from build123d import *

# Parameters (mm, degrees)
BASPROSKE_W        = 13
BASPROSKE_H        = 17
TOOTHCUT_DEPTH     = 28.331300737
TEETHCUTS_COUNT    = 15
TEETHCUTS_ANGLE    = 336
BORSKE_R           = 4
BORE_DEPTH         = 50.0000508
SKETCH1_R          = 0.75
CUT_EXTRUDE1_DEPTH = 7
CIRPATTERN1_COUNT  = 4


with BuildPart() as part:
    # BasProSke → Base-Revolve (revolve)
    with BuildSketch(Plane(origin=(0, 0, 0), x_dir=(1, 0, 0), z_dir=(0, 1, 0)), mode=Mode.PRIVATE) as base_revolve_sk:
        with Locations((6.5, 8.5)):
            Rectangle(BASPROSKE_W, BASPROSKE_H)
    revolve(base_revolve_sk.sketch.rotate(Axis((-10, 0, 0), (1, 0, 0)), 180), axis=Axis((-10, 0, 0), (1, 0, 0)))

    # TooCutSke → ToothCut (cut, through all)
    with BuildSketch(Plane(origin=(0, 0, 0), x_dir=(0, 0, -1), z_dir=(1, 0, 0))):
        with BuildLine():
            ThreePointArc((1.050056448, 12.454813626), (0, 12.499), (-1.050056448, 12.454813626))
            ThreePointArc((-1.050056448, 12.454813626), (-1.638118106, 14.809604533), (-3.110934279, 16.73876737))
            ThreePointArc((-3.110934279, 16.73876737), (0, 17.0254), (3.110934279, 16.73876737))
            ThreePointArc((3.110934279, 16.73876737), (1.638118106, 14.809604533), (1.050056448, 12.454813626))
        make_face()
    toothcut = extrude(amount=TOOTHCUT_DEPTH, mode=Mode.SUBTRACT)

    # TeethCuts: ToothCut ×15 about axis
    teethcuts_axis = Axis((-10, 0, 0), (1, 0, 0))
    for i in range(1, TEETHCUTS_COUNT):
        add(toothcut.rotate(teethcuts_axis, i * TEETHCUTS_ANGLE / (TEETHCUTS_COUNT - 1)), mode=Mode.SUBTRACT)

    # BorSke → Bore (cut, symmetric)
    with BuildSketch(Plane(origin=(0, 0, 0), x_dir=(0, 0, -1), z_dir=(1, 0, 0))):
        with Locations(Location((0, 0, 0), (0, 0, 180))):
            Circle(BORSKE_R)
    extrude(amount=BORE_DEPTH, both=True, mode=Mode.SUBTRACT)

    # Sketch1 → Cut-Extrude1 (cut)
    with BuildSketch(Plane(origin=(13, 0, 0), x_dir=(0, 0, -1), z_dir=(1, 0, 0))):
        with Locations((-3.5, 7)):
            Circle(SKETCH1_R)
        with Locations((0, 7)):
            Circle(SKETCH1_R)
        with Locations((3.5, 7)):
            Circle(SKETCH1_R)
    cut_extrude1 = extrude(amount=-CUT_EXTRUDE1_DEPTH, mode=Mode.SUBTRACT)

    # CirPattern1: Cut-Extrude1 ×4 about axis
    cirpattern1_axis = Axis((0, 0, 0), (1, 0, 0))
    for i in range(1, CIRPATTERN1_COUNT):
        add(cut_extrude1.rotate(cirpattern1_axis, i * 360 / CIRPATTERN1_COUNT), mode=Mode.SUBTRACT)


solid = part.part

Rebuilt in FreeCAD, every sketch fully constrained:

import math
import FreeCAD as App
import Part
import Sketcher
from FreeCAD import Vector

doc = App.newDocument("Part")
body = doc.addObject("PartDesign::Body", "Body")

# Sketch on XZ plane
sketch1 = body.newObject("Sketcher::SketchObject", "Sketch")
sketch1.AttachmentSupport = (doc.getObject("XZ_Plane"), [""])
sketch1.MapMode = "FlatFace"
sketch1.addGeometry([
    Part.LineSegment(Vector(0, -17, 0), Vector(0, 0, 0)),
    Part.LineSegment(Vector(0, 0, 0), Vector(13, 0, 0)),
    Part.LineSegment(Vector(13, 0, 0), Vector(13, -17, 0)),
    Part.LineSegment(Vector(13, -17, 0), Vector(0, -17, 0)),
], False)
sketch1.addConstraint([
    Sketcher.Constraint("Coincident", 0, 2, 1, 1),
    Sketcher.Constraint("Coincident", 1, 2, 2, 1),
    Sketcher.Constraint("Coincident", 2, 2, 3, 1),
    Sketcher.Constraint("Coincident", 3, 2, 0, 1),
    Sketcher.Constraint("Vertical", 0),
    Sketcher.Constraint("Horizontal", 1),
    Sketcher.Constraint("Vertical", 2),
    Sketcher.Constraint("Horizontal", 3),
    Sketcher.Constraint("Coincident", 0, 2, -1, 1),
    Sketcher.Constraint("DistanceX", 1, 1, 1, 2, 13.0),
    Sketcher.Constraint("DistanceY", 0, 1, 0, 2, 17.0),
])
revolution = body.newObject("PartDesign::Revolution", "Revolution")
revolution.Profile = sketch1
revolution.ReferenceAxis = (sketch1, ["H_Axis"])
revolution.Angle = 360

# Sketch on YZ plane
sketch2 = body.newObject("Sketcher::SketchObject", "Sketch001")
sketch2.AttachmentSupport = (doc.getObject("YZ_Plane"), [""])
sketch2.MapMode = "FlatFace"
sketch2.addGeometry([
    Part.ArcOfCircle(Part.Circle(Vector(0, 0, 0), Vector(0, 0, 1), 12.5), math.radians(-4.82), math.radians(4.82)),
    Part.ArcOfCircle(Part.Circle(Vector(12.2, -7, 0), Vector(0, 0, 1), 6), math.radians(41), math.radians(88)),
    Part.ArcOfCircle(Part.Circle(Vector(0, 0, 0), Vector(0, 0, 1), 17), math.radians(-11), math.radians(11)),
    Part.ArcOfCircle(Part.Circle(Vector(12.2, 7, 0), Vector(0, 0, 1), 6), math.radians(-88), math.radians(-41)),
], False)
sketch2.addConstraint([
    Sketcher.Constraint("Coincident", 0, 1, 1, 2),
    Sketcher.Constraint("Coincident", 1, 1, 2, 1),
    Sketcher.Constraint("Coincident", 2, 2, 3, 2),
    Sketcher.Constraint("Coincident", 3, 1, 0, 2),
    Sketcher.Constraint("Coincident", 0, 3, -1, 1),
    Sketcher.Constraint("Coincident", 2, 3, -1, 1),
    Sketcher.Constraint("Equal", 1, 3),
    Sketcher.Constraint("Symmetric", 1, 3, 3, 3, -1),
    Sketcher.Constraint("Radius", 1, 6.0),
    Sketcher.Constraint("Radius", 0, 12.499),
    Sketcher.Constraint("Radius", 2, 17.0254),
    Sketcher.Constraint("DistanceY", 1, 3, 3, 3, 14.089999),
    Sketcher.Constraint("DistanceX", -1, 1, 1, 3, 12.208521),
])
pocket1 = body.newObject("PartDesign::Pocket", "Pocket")
pocket1.Profile = sketch2
pocket1.Type = "ThroughAll"
pocket1.Reversed = True
doc.recompute()

polarpattern = body.newObject("PartDesign::PolarPattern", "PolarPattern")
polarpattern.Originals = [pocket1]
polarpattern.Axis = (doc.getObject("X_Axis"), [""])
polarpattern.Angle = 360
polarpattern.Occurrences = 15
body.Tip = polarpattern

# Sketch on YZ plane
sketch3 = body.newObject("Sketcher::SketchObject", "Sketch002")
sketch3.AttachmentSupport = (doc.getObject("YZ_Plane"), [""])
sketch3.MapMode = "FlatFace"
sketch3.addGeometry(Part.Circle(Vector(0, 0, 0), Vector(0, 0, 1), 4), False)
sketch3.addConstraint([
    Sketcher.Constraint("Coincident", 0, 3, -1, 1),
    Sketcher.Constraint("Diameter", 0, 8.0),
])
pocket2 = body.newObject("PartDesign::Pocket", "Pocket001")
pocket2.Profile = sketch3
pocket2.Length = 100.000102
pocket2.Midplane = True

# Sketch on YZ plane
sketch4 = body.newObject("Sketcher::SketchObject", "Sketch003")
sketch4.AttachmentSupport = (doc.getObject("YZ_Plane"), [""])
sketch4.MapMode = "FlatFace"
sketch4.AttachmentOffset = App.Placement(Vector(0, 0, 13), App.Rotation())
sketch4.addGeometry([
    Part.Circle(Vector(7, 3.5, 0), Vector(0, 0, 1), 0.8),
    Part.Circle(Vector(7, 0, 0), Vector(0, 0, 1), 0.8),
    Part.Circle(Vector(7, -3.5, 0), Vector(0, 0, 1), 0.8),
], False)
sketch4.addConstraint([
    Sketcher.Constraint("Equal", 0, 1),
    Sketcher.Constraint("Equal", 1, 2),
    Sketcher.Constraint("Symmetric", 0, 3, 2, 3, -1),
    Sketcher.Constraint("PointOnObject", 1, 3, -1),
    Sketcher.Constraint("Vertical", 0, 3, 1, 3),
    Sketcher.Constraint("Diameter", 0, 1.5),
    Sketcher.Constraint("DistanceX", -1, 1, 0, 3, 7.0),
    Sketcher.Constraint("DistanceY", 2, 3, 0, 3, 7.0),
])
pocket3 = body.newObject("PartDesign::Pocket", "Pocket002")
pocket3.Profile = sketch4
pocket3.Length = 7
doc.recompute()

polarpattern2 = body.newObject("PartDesign::PolarPattern", "PolarPattern001")
polarpattern2.Originals = [pocket3]
polarpattern2.Axis = (doc.getObject("X_Axis"), [""])
polarpattern2.Angle = 360
polarpattern2.Occurrences = 4
body.Tip = polarpattern2

doc.recompute()
